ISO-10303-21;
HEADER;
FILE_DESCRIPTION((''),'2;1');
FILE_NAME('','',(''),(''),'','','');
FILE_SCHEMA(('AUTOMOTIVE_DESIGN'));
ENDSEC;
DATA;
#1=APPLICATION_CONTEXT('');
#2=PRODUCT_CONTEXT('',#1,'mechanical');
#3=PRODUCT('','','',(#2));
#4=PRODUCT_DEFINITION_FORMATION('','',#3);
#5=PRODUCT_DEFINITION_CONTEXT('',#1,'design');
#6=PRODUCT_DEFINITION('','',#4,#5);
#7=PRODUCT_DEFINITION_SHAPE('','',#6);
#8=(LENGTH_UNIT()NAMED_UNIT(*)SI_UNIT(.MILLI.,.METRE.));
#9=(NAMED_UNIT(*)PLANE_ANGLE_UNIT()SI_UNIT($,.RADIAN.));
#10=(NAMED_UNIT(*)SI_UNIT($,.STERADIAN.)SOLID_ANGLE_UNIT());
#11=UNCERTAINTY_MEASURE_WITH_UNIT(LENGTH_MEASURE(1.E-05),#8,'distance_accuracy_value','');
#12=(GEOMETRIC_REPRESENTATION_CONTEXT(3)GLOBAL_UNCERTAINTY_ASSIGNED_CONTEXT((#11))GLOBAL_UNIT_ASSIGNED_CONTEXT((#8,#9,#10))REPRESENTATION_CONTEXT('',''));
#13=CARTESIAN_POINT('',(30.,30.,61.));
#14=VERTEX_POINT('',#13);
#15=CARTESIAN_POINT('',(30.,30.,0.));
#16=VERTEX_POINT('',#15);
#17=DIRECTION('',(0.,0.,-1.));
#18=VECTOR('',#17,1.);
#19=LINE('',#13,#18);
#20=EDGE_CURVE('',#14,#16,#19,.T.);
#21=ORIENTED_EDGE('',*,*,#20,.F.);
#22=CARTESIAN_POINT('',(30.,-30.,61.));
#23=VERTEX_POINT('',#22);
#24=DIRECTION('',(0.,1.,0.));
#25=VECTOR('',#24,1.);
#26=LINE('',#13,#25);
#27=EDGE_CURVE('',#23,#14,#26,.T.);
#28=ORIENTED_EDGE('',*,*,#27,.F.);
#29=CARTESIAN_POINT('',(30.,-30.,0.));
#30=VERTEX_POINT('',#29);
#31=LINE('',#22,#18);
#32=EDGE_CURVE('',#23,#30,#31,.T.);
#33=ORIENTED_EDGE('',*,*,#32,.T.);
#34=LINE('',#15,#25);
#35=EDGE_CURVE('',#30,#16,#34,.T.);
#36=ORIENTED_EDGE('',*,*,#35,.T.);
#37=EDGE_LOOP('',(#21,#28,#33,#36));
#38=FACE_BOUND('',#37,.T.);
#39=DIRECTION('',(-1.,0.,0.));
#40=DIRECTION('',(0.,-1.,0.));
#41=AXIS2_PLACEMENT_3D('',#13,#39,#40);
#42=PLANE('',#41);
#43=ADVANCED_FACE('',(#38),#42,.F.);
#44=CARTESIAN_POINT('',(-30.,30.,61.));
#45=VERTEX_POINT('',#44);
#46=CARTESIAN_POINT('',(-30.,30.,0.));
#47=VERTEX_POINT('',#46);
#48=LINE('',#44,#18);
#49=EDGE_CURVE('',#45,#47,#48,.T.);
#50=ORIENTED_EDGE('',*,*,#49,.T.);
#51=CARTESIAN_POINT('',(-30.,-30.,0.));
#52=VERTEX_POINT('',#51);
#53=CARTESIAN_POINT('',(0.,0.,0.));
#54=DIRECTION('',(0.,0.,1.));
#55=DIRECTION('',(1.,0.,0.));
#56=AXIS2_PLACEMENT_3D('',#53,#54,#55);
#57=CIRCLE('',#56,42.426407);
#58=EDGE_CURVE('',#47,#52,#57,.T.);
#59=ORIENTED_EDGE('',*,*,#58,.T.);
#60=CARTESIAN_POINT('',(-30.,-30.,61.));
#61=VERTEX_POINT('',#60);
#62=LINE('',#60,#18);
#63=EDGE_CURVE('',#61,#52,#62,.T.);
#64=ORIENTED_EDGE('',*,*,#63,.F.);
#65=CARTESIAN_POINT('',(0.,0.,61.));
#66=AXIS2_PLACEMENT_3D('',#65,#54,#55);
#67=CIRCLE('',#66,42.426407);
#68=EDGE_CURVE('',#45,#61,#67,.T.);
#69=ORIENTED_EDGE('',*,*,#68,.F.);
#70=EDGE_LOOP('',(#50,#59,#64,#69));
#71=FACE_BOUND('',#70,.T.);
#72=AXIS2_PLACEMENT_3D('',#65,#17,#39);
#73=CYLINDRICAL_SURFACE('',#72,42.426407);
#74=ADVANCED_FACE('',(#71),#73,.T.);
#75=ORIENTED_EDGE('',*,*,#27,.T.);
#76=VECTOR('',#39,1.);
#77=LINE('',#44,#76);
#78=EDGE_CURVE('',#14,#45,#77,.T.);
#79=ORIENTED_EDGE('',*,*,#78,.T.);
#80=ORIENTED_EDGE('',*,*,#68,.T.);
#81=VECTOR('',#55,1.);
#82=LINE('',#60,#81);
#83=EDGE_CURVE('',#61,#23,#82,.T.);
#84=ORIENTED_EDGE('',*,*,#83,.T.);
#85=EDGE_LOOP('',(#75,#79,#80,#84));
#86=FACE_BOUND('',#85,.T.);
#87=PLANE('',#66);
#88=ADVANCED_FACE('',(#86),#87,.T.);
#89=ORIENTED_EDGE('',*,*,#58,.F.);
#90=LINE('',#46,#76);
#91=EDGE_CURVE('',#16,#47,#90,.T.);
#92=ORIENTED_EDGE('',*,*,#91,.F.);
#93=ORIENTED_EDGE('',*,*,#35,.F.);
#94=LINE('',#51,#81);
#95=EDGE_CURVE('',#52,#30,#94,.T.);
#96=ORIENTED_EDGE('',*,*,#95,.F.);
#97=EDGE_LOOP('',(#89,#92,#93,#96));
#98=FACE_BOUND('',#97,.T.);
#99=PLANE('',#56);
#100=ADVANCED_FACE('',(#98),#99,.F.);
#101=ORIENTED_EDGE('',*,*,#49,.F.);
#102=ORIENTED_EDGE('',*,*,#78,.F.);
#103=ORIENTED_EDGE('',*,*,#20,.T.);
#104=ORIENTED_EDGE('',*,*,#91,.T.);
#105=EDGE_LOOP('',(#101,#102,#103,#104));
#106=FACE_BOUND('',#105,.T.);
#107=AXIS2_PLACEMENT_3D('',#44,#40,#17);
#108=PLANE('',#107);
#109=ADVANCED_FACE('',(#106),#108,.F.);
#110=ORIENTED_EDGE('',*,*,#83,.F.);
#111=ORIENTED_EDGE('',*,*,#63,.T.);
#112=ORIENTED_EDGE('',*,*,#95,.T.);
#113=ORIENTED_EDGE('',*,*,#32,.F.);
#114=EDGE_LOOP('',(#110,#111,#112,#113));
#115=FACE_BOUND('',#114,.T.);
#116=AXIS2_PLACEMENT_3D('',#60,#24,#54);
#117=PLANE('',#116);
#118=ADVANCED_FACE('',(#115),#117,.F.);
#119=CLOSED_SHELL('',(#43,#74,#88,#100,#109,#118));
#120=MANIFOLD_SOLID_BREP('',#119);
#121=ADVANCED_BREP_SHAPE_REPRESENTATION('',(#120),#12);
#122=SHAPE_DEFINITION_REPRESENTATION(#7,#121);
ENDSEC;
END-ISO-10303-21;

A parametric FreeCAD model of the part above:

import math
import FreeCAD as App
import Part
import Sketcher
Q = App.Units.Quantity

doc = App.newDocument("Part")
body = doc.addObject("PartDesign::Body", "Body")

# Sketch on XY plane
sketch1 = body.newObject("Sketcher::SketchObject", "Sketch")
sketch1.AttachmentSupport = (doc.getObject("XY_Plane"), [""])
sketch1.MapMode = "FlatFace"
sketch1.addGeometry(Part.LineSegment(App.Vector(30, 30, 0), App.Vector(-30, 30, 0)), False)
sketch1.addGeometry(Part.ArcOfCircle(Part.Circle(App.Vector(0, 0, 0), App.Vector(0, 0, 1), 42), math.radians(135), math.radians(225)), False)
sketch1.addGeometry(Part.LineSegment(App.Vector(-30, -30, 0), App.Vector(30, -30, 0)), False)
sketch1.addGeometry(Part.LineSegment(App.Vector(30, -30, 0), App.Vector(30, 30, 0)), False)
sketch1.addConstraint(Sketcher.Constraint("Coincident", 0, 2, 1, 1))
sketch1.addConstraint(Sketcher.Constraint("Coincident", 1, 2, 2, 1))
sketch1.addConstraint(Sketcher.Constraint("Coincident", 2, 2, 3, 1))
sketch1.addConstraint(Sketcher.Constraint("Coincident", 3, 2, 0, 1))
sketch1.addConstraint(Sketcher.Constraint("Horizontal", 0))
sketch1.addConstraint(Sketcher.Constraint("Horizontal", 2))
sketch1.addConstraint(Sketcher.Constraint("Vertical", 3))
sketch1.addConstraint(Sketcher.Constraint("Coincident", 1, 3, -1, 1))
sketch1.addConstraint(Sketcher.Constraint("Symmetric", 0, 2, 2, 2, -1, 1))
sketch1.addConstraint(Sketcher.Constraint("Equal", 2, 3))
sketch1.addConstraint(Sketcher.Constraint("DistanceX", 0, 2, 0, 1, Q("60 mm")))
pad1 = body.newObject("PartDesign::Pad", "Pad")
pad1.Profile = sketch1
pad1.Length = 61

doc.recompute()
